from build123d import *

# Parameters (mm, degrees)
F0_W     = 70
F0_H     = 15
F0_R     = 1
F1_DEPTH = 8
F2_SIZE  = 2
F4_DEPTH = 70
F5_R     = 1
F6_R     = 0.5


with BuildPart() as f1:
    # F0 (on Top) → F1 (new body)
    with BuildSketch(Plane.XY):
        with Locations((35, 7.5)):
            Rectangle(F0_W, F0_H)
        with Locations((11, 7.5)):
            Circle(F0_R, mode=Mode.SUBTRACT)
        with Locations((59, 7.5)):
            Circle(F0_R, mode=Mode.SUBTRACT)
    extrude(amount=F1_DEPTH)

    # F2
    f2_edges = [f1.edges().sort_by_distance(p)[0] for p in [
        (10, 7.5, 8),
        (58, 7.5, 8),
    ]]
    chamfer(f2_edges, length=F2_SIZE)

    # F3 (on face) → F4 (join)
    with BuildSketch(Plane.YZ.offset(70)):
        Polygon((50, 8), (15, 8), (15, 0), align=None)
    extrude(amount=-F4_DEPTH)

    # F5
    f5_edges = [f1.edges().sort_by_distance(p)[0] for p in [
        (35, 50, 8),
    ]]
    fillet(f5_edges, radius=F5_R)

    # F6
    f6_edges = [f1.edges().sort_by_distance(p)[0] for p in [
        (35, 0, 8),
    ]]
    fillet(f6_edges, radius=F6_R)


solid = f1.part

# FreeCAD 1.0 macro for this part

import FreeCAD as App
import Part
import Sketcher


def edges_at(feature, points):
    """Names of the edges that pass closest to the given points."""
    edges = feature.Shape.Edges
    near = lambda p: min(range(len(edges)), key=lambda i: edges[i].distToShape(Part.Vertex(*p))[0])
    return sorted({f"Edge{near(p) + 1}" for p in points})

doc = App.newDocument("Part")
body = doc.addObject("PartDesign::Body", "Body")

sketch1 = body.newObject("Sketcher::SketchObject", "Sketch")
sketch1.AttachmentSupport = (doc.getObject("XY_Plane"), [""])
sketch1.MapMode = "FlatFace"
sketch1.addGeometry([
    Part.LineSegment(App.Vector(0, 15, 0), App.Vector(0, 0, 0)),
    Part.LineSegment(App.Vector(0, 0, 0), App.Vector(70, 0, 0)),
    Part.LineSegment(App.Vector(70, 0, 0), App.Vector(70, 15, 0)),
    Part.LineSegment(App.Vector(70, 15, 0), App.Vector(0, 15, 0)),
    Part.Circle(App.Vector(11, 7.5, 0), App.Vector(0, 0, 1), 1),
    Part.Circle(App.Vector(59, 7.5, 0), App.Vector(0, 0, 1), 1),
], False)
sketch1.addConstraint([
    Sketcher.Constraint("Coincident", 0, 2, 1, 1),
    Sketcher.Constraint("Coincident", 1, 2, 2, 1),
    Sketcher.Constraint("Coincident", 2, 2, 3, 1),
    Sketcher.Constraint("Coincident", 3, 2, 0, 1),
    Sketcher.Constraint("Vertical", 0),
    Sketcher.Constraint("Horizontal", 1),
    Sketcher.Constraint("Vertical", 2),
    Sketcher.Constraint("Horizontal", 3),
    Sketcher.Constraint("Coincident", 0, 2, -1, 1),
    Sketcher.Constraint("Equal", 4, 5),
    Sketcher.Constraint("Horizontal", 4, 3, 5, 3),
    Sketcher.Constraint("Diameter", 4, 2.0),
    Sketcher.Constraint("DistanceX", 1, 1, 1, 2, 70.0),
    Sketcher.Constraint("DistanceY", 0, 2, 0, 1, 15.0),
    Sketcher.Constraint("DistanceX", -1, 1, 4, 3, 11.0),
    Sketcher.Constraint("DistanceX", -1, 1, 5, 3, 59.0),
    Sketcher.Constraint("DistanceY", -1, 1, 4, 3, 7.5),
])
pad1 = body.newObject("PartDesign::Pad", "Pad")
pad1.Profile = sketch1
pad1.Length = 8
doc.recompute()

chamfer = body.newObject("PartDesign::Chamfer", "Chamfer")
chamfer.Base = (pad1, edges_at(pad1, [(10, 7.5, 8), (58, 7.5, 8)]))
chamfer.Size = 2

sketch2 = body.newObject("Sketcher::SketchObject", "Sketch001")
sketch2.AttachmentSupport = (doc.getObject("YZ_Plane"), [""])
sketch2.MapMode = "FlatFace"
sketch2.AttachmentOffset = App.Placement(App.Vector(0, 0, 70), App.Rotation())
sketch2.addGeometry([
    Part.LineSegment(App.Vector(50, 8, 0), App.Vector(15, 8, 0)),
    Part.LineSegment(App.Vector(15, 8, 0), App.Vector(15, 0, 0)),
    Part.LineSegment(App.Vector(15, 0, 0), App.Vector(50, 8, 0)),
], False)
sketch2.addConstraint([
    Sketcher.Constraint("Coincident", 0, 2, 1, 1),
    Sketcher.Constraint("Coincident", 1, 2, 2, 1),
    Sketcher.Constraint("Coincident", 2, 2, 0, 1),
    Sketcher.Constraint("Horizontal", 0),
    Sketcher.Constraint("Vertical", 1),
    Sketcher.Constraint("PointOnObject", 1, 2, -1),
    Sketcher.Constraint("DistanceX", 0, 2, 0, 1, 35.0),
    Sketcher.Constraint("DistanceY", 1, 2, 1, 1, 8.0),
    Sketcher.Constraint("DistanceX", -1, 1, 0, 2, 15.0),
])
pad2 = body.newObject("PartDesign::Pad", "Pad001")
pad2.Profile = sketch2
pad2.Length = 70
pad2.Reversed = True
doc.recompute()

fillet = body.newObject("PartDesign::Fillet", "Fillet")
fillet.Base = (pad2, edges_at(pad2, [(35, 50, 8)]))
fillet.Radius = 1
doc.recompute()

fillet2 = body.newObject("PartDesign::Fillet", "Fillet001")
fillet2.Base = (fillet, edges_at(fillet, [(35, 0, 8)]))
fillet2.Radius = 0.5

doc.recompute()
